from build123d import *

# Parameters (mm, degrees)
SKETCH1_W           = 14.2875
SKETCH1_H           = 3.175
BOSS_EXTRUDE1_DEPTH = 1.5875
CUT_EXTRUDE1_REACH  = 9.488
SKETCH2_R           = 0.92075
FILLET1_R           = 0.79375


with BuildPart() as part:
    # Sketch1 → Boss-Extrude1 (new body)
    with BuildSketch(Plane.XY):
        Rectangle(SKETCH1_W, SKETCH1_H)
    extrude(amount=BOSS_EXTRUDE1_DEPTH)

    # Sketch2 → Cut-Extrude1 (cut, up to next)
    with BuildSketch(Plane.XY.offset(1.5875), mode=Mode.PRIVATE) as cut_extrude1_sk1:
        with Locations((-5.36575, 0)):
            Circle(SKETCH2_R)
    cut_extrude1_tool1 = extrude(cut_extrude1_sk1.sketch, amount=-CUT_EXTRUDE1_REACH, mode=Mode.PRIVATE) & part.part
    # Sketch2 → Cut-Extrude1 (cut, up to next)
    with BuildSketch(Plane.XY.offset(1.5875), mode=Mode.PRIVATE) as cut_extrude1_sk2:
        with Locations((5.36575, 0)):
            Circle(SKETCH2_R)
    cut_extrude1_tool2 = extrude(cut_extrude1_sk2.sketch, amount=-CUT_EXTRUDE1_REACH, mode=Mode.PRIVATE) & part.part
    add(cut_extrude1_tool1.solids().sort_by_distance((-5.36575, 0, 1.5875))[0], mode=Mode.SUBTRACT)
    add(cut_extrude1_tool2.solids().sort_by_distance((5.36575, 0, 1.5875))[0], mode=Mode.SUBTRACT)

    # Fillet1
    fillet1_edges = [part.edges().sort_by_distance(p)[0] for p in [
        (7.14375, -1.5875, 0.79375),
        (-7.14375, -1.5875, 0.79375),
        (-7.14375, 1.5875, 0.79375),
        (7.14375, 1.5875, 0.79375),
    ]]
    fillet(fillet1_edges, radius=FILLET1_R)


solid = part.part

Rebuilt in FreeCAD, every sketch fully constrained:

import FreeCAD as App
import Part
import Sketcher
Q = App.Units.Quantity


def edges_at(feature, points):
    """Names of the edges that pass closest to the given points."""
    edges = feature.Shape.Edges
    near = lambda p: min(range(len(edges)), key=lambda i: edges[i].distToShape(Part.Vertex(*p))[0])
    return sorted({f"Edge{near(p) + 1}" for p in points})

doc = App.newDocument("Part")
params = doc.addObject("Spreadsheet::Sheet", "Params")
for row, (alias, value) in enumerate([
    ("sketch1_width", "0.5625 in"),
    ("sketch1_height", "0.125 in"),
    ("pad1_length", "0.0625 in"),
    ("fillet_radius", "0.03125 in"),
], start=1):
    params.set(f"A{row}", alias)
    params.set(f"B{row}", "=" + value)
    params.setAlias(f"B{row}", alias)

body = doc.addObject("PartDesign::Body", "Body")

# Sketch on XY plane
sketch1 = doc.addObject("Sketcher::SketchObject", "Sketch")
body.addObject(sketch1)
sketch1.AttachmentSupport = (doc.XY_Plane, [""])
sketch1.MapMode = "FlatFace"
sketch1.addGeometry([
    Part.LineSegment(App.Vector(-7.14375, 1.5875, 0), App.Vector(-7.14375, -1.5875, 0)),
    Part.LineSegment(App.Vector(-7.14375, -1.5875, 0), App.Vector(7.14375, -1.5875, 0)),
    Part.LineSegment(App.Vector(7.14375, -1.5875, 0), App.Vector(7.14375, 1.5875, 0)),
    Part.LineSegment(App.Vector(7.14375, 1.5875, 0), App.Vector(-7.14375, 1.5875, 0)),
], False)
sketch1.addConstraint([
    Sketcher.Constraint("Coincident", 0, 2, 1, 1),
    Sketcher.Constraint("Coincident", 1, 2, 2, 1),
    Sketcher.Constraint("Coincident", 2, 2, 3, 1),
    Sketcher.Constraint("Coincident", 3, 2, 0, 1),
    Sketcher.Constraint("Vertical", 0),
    Sketcher.Constraint("Horizontal", 1),
    Sketcher.Constraint("Vertical", 2),
    Sketcher.Constraint("Horizontal", 3),
    Sketcher.Constraint("Symmetric", 0, 2, 2, 2, -1, 1),
    Sketcher.Constraint("DistanceX", 1, 1, 1, 2, Q("0.5625 in")),
    Sketcher.Constraint("DistanceY", 0, 2, 0, 1, Q("0.125 in")),
])
sketch1.setExpression("Constraints[9]", "Params.sketch1_width")
sketch1.setExpression("Constraints[10]", "Params.sketch1_height")
pad1 = doc.addObject("PartDesign::Pad", "Pad")
body.addObject(pad1)
pad1.Profile = sketch1
pad1.setExpression("Length", "Params.pad1_length")

# Sketch on XY plane
sketch2 = doc.addObject("Sketcher::SketchObject", "Sketch001")
body.addObject(sketch2)
sketch2.AttachmentSupport = (doc.XY_Plane, [""])
sketch2.MapMode = "FlatFace"
sketch2.AttachmentOffset = App.Placement(App.Vector(0, 0, 0.0625 * 25.4), App.Rotation())
sketch2.addGeometry(Part.Circle(App.Vector(-5.36575, 0, 0), App.Vector(0, 0, 1), 0.92075), False)
sketch2.addConstraint([
    Sketcher.Constraint("PointOnObject", 0, 3, -1),
    Sketcher.Constraint("Diameter", 0, Q("0.0725 in")),
    Sketcher.Constraint("DistanceX", 0, 3, -1, 1, Q("5.36575 mm")),
])
pocket1 = doc.addObject("PartDesign::Pocket", "Pocket")
body.addObject(pocket1)
pocket1.Profile = sketch2
pocket1.Type = "UpToFirst"

# Sketch on XY plane
sketch3 = doc.addObject("Sketcher::SketchObject", "Sketch002")
body.addObject(sketch3)
sketch3.AttachmentSupport = (doc.XY_Plane, [""])
sketch3.MapMode = "FlatFace"
sketch3.AttachmentOffset = App.Placement(App.Vector(0, 0, 0.0625 * 25.4), App.Rotation())
sketch3.addGeometry(Part.Circle(App.Vector(5.36575, 0, 0), App.Vector(0, 0, 1), 0.92075), False)
sketch3.addConstraint([
    Sketcher.Constraint("PointOnObject", 0, 3, -1),
    Sketcher.Constraint("Diameter", 0, Q("0.0725 in")),
    Sketcher.Constraint("DistanceX", -1, 1, 0, 3, Q("5.36575 mm")),
])
pocket2 = doc.addObject("PartDesign::Pocket", "Pocket001")
body.addObject(pocket2)
pocket2.Profile = sketch3
pocket2.Type = "UpToFirst"
doc.recompute()

fillet = doc.addObject("PartDesign::Fillet", "Fillet")
body.addObject(fillet)
fillet.Base = (pocket2, edges_at(pocket2, [
    (7.144, -1.587, 0.794),
    (-7.144, -1.587, 0.794),
    (-7.144, 1.587, 0.794),
    (7.144, 1.587, 0.794),
]))
fillet.setExpression("Radius", "Params.fillet_radius")

doc.recompute()
